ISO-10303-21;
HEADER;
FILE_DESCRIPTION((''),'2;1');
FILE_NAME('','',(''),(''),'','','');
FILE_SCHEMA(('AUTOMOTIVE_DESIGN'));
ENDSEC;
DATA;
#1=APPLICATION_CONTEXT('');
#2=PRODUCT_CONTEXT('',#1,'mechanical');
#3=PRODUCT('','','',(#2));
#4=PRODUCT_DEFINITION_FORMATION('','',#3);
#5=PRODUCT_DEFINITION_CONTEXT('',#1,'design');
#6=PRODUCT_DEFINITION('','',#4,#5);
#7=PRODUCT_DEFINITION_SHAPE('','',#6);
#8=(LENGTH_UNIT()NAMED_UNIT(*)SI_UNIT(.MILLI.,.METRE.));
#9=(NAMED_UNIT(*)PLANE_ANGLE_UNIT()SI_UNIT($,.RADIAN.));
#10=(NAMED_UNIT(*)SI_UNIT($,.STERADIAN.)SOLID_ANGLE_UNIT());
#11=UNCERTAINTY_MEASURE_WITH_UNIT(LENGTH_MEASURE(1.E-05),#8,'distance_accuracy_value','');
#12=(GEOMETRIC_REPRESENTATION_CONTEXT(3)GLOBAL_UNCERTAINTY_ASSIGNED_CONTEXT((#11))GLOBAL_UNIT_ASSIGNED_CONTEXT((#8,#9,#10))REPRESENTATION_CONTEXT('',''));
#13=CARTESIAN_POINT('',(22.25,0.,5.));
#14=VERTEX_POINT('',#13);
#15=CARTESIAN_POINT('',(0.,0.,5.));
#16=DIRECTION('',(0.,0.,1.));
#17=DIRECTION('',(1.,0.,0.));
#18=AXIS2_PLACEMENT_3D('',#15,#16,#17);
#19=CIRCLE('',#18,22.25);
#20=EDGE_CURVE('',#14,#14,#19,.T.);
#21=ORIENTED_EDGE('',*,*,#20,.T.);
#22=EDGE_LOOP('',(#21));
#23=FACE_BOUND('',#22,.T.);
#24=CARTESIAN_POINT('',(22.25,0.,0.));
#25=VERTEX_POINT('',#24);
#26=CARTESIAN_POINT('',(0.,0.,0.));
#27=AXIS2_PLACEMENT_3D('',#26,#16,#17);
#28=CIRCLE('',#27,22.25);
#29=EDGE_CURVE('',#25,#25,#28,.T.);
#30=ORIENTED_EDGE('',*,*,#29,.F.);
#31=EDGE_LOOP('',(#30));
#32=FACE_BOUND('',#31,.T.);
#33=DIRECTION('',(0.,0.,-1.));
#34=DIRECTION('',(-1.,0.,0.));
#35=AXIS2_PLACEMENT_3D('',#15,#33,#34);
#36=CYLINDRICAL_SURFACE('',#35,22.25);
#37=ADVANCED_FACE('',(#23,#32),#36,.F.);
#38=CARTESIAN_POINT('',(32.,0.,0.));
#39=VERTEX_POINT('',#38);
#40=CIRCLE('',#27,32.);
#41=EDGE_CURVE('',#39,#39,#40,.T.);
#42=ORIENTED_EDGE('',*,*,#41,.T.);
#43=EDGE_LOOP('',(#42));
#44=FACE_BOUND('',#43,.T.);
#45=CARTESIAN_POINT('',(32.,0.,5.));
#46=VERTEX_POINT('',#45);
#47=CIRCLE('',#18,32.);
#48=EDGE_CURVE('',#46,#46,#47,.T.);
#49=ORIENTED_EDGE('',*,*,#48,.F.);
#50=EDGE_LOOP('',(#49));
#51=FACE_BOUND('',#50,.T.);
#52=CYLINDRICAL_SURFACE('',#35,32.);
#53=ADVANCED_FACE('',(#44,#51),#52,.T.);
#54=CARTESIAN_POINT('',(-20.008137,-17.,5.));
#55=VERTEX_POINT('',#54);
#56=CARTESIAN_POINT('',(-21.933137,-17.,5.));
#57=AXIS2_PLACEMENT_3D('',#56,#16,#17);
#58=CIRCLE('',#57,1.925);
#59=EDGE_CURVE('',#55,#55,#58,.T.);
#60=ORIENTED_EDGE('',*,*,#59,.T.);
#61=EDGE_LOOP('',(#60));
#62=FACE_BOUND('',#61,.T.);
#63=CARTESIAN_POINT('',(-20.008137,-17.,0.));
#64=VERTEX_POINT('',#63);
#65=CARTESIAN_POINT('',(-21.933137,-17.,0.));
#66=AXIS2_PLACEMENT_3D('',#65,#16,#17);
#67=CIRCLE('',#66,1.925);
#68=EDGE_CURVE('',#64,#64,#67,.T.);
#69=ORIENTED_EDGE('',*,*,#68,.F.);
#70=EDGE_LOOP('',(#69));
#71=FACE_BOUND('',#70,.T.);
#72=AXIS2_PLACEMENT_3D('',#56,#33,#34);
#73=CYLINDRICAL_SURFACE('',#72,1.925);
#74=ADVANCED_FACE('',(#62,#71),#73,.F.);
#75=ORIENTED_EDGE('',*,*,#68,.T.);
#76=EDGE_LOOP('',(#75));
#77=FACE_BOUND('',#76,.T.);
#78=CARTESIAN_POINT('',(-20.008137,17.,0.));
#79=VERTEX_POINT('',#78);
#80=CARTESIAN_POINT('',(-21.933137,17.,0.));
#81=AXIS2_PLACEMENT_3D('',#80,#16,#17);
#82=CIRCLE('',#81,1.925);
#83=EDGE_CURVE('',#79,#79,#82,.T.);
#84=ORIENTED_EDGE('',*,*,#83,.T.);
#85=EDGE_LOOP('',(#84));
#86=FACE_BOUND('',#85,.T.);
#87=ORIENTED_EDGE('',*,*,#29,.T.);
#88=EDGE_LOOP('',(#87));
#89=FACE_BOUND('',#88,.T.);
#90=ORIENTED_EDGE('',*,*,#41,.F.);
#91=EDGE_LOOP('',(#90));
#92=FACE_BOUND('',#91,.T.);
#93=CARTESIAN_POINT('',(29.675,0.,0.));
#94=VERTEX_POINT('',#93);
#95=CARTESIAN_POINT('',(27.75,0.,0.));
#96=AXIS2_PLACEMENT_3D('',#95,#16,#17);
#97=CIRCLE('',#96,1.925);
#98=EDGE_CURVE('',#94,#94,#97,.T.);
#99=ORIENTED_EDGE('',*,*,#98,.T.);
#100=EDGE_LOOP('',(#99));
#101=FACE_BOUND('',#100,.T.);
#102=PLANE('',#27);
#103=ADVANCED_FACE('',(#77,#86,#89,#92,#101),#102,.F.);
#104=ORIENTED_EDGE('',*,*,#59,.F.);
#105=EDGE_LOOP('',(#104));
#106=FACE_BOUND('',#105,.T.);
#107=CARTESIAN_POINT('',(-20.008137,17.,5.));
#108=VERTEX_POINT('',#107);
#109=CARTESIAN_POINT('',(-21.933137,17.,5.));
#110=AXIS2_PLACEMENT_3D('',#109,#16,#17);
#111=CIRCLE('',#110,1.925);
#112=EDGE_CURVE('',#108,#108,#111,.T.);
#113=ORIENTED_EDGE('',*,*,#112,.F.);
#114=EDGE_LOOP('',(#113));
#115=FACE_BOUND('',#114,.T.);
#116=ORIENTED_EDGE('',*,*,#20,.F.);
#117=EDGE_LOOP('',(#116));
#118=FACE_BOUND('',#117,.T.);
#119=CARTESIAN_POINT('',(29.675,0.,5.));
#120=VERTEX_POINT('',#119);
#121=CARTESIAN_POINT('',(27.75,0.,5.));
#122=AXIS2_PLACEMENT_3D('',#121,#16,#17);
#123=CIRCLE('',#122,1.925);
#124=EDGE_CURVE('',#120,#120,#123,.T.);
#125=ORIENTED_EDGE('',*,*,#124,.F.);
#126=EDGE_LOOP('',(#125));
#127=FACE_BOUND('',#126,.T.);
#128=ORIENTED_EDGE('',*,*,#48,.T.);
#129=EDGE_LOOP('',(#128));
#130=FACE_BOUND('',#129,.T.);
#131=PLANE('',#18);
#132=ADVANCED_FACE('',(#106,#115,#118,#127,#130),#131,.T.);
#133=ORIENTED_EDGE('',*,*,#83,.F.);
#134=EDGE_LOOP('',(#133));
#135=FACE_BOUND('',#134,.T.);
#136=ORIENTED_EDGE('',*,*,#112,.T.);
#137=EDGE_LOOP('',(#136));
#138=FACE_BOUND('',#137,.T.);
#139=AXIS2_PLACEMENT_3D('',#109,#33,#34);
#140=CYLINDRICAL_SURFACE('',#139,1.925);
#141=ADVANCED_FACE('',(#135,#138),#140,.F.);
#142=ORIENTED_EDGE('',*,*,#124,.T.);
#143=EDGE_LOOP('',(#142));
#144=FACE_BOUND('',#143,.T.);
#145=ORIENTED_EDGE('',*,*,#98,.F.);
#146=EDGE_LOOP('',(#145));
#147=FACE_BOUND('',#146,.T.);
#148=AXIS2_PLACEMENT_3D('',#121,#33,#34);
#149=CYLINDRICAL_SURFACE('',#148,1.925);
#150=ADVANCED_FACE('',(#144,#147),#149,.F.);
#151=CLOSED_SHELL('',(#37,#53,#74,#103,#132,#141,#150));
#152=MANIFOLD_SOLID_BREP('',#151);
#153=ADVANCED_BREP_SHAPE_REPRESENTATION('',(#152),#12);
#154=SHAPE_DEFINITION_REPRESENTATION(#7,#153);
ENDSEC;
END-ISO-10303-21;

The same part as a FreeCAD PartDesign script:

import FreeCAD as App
import Part
import Sketcher

V = App.Vector
Q = App.Units.Quantity

doc = App.newDocument("Part")
body = doc.addObject("PartDesign::Body", "Body")

sketch1 = body.newObject("Sketcher::SketchObject", "Sketch")
sketch1.AttachmentSupport = (doc.getObject("XY_Plane"), [""])
sketch1.MapMode = "FlatFace"
sketch1.addGeometry([
    Part.Circle(V(0, 0, 0), V(0, 0, 1), 32),
    Part.Circle(V(-21.9, -17, 0), V(0, 0, 1), 1.9),
    Part.Circle(V(0, 0, 0), V(0, 0, 1), 22.2),
    Part.Circle(V(-21.9, 17, 0), V(0, 0, 1), 1.9),
    Part.Circle(V(27.8, 0, 0), V(0, 0, 1), 1.9),
], False)
sketch1.addConstraint([
    Sketcher.Constraint("Coincident", 0, 3, -1, 1),
    Sketcher.Constraint("Coincident", 2, 3, -1, 1),
    Sketcher.Constraint("Equal", 1, 3),
    Sketcher.Constraint("Equal", 3, 4),
    Sketcher.Constraint("Symmetric", 1, 3, 3, 3, -1),
    Sketcher.Constraint("PointOnObject", 4, 3, -1),
    Sketcher.Constraint("Diameter", 0, Q("64 mm")),
    Sketcher.Constraint("Diameter", 2, Q("44.5 mm")),
    Sketcher.Constraint("Diameter", 1, Q("3.85 mm")),
    Sketcher.Constraint("DistanceY", 1, 3, -1, 1, Q("17 mm")),
    Sketcher.Constraint("DistanceX", -1, 1, 4, 3, Q("27.75 mm")),
    Sketcher.Constraint("DistanceX", 1, 3, -1, 1, Q("21.933137 mm")),
])
pad1 = body.newObject("PartDesign::Pad", "Pad")
pad1.Profile = sketch1
pad1.Length = 5

doc.recompute()
